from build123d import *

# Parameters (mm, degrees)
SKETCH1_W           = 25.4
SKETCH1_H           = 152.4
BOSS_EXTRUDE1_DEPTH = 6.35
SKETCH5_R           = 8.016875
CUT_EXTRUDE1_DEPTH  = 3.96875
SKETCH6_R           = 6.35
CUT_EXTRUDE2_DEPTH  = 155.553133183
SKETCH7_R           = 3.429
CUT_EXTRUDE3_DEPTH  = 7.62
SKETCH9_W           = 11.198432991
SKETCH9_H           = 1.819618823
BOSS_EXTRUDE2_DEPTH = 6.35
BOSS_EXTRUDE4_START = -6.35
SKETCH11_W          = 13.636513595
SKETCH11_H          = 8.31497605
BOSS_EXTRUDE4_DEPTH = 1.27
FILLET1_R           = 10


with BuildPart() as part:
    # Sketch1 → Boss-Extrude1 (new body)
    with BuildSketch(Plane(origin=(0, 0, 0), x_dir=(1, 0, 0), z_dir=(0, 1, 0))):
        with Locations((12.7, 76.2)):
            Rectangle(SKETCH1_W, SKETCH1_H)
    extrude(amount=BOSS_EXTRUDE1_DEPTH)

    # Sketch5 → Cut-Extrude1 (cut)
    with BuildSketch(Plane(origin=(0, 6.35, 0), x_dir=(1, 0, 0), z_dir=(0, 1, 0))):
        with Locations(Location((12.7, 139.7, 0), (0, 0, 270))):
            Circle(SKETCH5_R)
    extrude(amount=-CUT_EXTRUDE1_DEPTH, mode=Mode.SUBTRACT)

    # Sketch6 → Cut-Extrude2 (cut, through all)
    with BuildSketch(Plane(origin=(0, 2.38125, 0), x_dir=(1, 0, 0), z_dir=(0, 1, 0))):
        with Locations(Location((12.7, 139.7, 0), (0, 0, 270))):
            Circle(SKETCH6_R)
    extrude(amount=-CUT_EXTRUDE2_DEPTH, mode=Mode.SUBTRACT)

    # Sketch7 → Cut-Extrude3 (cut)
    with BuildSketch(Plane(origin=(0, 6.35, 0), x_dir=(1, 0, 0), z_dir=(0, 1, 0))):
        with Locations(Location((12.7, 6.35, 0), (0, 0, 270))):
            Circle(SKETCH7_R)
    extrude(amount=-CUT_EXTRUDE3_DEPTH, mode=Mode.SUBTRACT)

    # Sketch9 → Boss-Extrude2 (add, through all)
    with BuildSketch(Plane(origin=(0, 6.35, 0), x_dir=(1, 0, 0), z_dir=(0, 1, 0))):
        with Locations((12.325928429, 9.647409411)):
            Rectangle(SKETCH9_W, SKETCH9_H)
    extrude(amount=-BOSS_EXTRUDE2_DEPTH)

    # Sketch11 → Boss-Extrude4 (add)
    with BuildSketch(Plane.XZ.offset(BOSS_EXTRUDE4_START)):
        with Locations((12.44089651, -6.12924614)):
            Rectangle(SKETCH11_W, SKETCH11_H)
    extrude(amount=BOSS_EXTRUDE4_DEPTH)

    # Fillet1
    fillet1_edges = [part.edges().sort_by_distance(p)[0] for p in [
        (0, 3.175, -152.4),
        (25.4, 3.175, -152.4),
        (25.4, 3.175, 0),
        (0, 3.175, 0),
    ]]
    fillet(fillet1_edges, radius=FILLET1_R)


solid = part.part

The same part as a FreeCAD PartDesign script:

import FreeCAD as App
import Part
import Sketcher
from FreeCAD import Vector
Q = App.Units.Quantity


def edges_at(feature, points):
    """Names of the edges that pass closest to the given points."""
    edges = feature.Shape.Edges
    near = lambda p: min(range(len(edges)), key=lambda i: edges[i].distToShape(Part.Vertex(*p))[0])
    return sorted({f"Edge{near(p) + 1}" for p in points})

doc = App.newDocument("Part")
body = doc.addObject("PartDesign::Body", "Body")

sketch1 = body.newObject("Sketcher::SketchObject", "Sketch")
sketch1.AttachmentSupport = (doc.getObject("XZ_Plane"), [""])
sketch1.MapMode = "FlatFace"
sketch1.addGeometry(Part.LineSegment(Vector(0, -152.4, 0), Vector(0, 0, 0)), False)
sketch1.addGeometry(Part.LineSegment(Vector(0, 0, 0), Vector(25.4, 0, 0)), False)
sketch1.addGeometry(Part.LineSegment(Vector(25.4, 0, 0), Vector(25.4, -152.4, 0)), False)
sketch1.addGeometry(Part.LineSegment(Vector(25.4, -152.4, 0), Vector(0, -152.4, 0)), False)
sketch1.addConstraint(Sketcher.Constraint("Coincident", 0, 2, 1, 1))
sketch1.addConstraint(Sketcher.Constraint("Coincident", 1, 2, 2, 1))
sketch1.addConstraint(Sketcher.Constraint("Coincident", 2, 2, 3, 1))
sketch1.addConstraint(Sketcher.Constraint("Coincident", 3, 2, 0, 1))
sketch1.addConstraint(Sketcher.Constraint("Vertical", 0))
sketch1.addConstraint(Sketcher.Constraint("Horizontal", 1))
sketch1.addConstraint(Sketcher.Constraint("Vertical", 2))
sketch1.addConstraint(Sketcher.Constraint("Horizontal", 3))
sketch1.addConstraint(Sketcher.Constraint("Coincident", 0, 2, -1, 1))
sketch1.addConstraint(Sketcher.Constraint("DistanceX", 1, 1, 1, 2, Q("1 in")))
sketch1.addConstraint(Sketcher.Constraint("DistanceY", 0, 1, 0, 2, Q("6 in")))
pad1 = body.newObject("PartDesign::Pad", "Pad")
pad1.Profile = sketch1
pad1.Length = Q("0.25 in")
pad1.Reversed = True

sketch2 = body.newObject("Sketcher::SketchObject", "Sketch001")
sketch2.AttachmentSupport = (doc.getObject("XZ_Plane"), [""])
sketch2.MapMode = "FlatFace"
sketch2.AttachmentOffset = App.Placement(Vector(0, 0, -0.25 * 25.4), App.Rotation())
sketch2.addGeometry(Part.Circle(Vector(12.7, -139.7, 0), Vector(0, 0, 1), 8.016875), False)
sketch2.addConstraint(Sketcher.Constraint("DistanceX", -1, 1, 0, 3, Q("0.5 in")))
sketch2.addConstraint(Sketcher.Constraint("DistanceY", 0, 3, -1, 1, Q("5.5 in")))
sketch2.addConstraint(Sketcher.Constraint("Diameter", 0, Q("16.03375 mm")))
pocket1 = body.newObject("PartDesign::Pocket", "Pocket")
pocket1.Profile = sketch2
pocket1.Length = Q("0.15625 in")
pocket1.Reversed = True

sketch3 = body.newObject("Sketcher::SketchObject", "Sketch002")
sketch3.AttachmentSupport = (doc.getObject("XZ_Plane"), [""])
sketch3.MapMode = "FlatFace"
sketch3.AttachmentOffset = App.Placement(Vector(0, 0, -0.09375 * 25.4), App.Rotation())
sketch3.addGeometry(Part.Circle(Vector(12.7, -139.7, 0), Vector(0, 0, 1), 6.35), False)
sketch3.addConstraint(Sketcher.Constraint("Diameter", 0, Q("0.5 in")))
sketch3.addConstraint(Sketcher.Constraint("DistanceX", -1, 1, 0, 3, Q("0.5 in")))
sketch3.addConstraint(Sketcher.Constraint("DistanceY", 0, 3, -1, 1, Q("5.5 in")))
pocket2 = body.newObject("PartDesign::Pocket", "Pocket001")
pocket2.Profile = sketch3
pocket2.Type = "ThroughAll"
pocket2.Reversed = True

sketch4 = body.newObject("Sketcher::SketchObject", "Sketch003")
sketch4.AttachmentSupport = (doc.getObject("XZ_Plane"), [""])
sketch4.MapMode = "FlatFace"
sketch4.AttachmentOffset = App.Placement(Vector(0, 0, -0.25 * 25.4), App.Rotation())
sketch4.addGeometry(Part.Circle(Vector(12.7, -6.35, 0), Vector(0, 0, 1), 3.429), False)
sketch4.addConstraint(Sketcher.Constraint("Diameter", 0, Q("0.27 in")))
sketch4.addConstraint(Sketcher.Constraint("DistanceX", -1, 1, 0, 3, Q("0.5 in")))
sketch4.addConstraint(Sketcher.Constraint("DistanceY", 0, 3, -1, 1, Q("0.25 in")))
pocket3 = body.newObject("PartDesign::Pocket", "Pocket002")
pocket3.Profile = sketch4
pocket3.Length = Q("0.3 in")
pocket3.Reversed = True

sketch5 = body.newObject("Sketcher::SketchObject", "Sketch004")
sketch5.AttachmentSupport = (doc.getObject("XZ_Plane"), [""])
sketch5.MapMode = "FlatFace"
sketch5.AttachmentOffset = App.Placement(Vector(0, 0, -0.25 * 25.4), App.Rotation())
sketch5.addGeometry(Part.LineSegment(Vector(6.726712, -10.557219, 0), Vector(6.726712, -8.7376, 0)), False)
sketch5.addGeometry(Part.LineSegment(Vector(6.726712, -8.7376, 0), Vector(17.925145, -8.7376, 0)), False)
sketch5.addGeometry(Part.LineSegment(Vector(17.925145, -8.7376, 0), Vector(17.925145, -10.557219, 0)), False)
sketch5.addGeometry(Part.LineSegment(Vector(17.925145, -10.557219, 0), Vector(6.726712, -10.557219, 0)), False)
sketch5.addConstraint(Sketcher.Constraint("Coincident", 0, 2, 1, 1))
sketch5.addConstraint(Sketcher.Constraint("Coincident", 1, 2, 2, 1))
sketch5.addConstraint(Sketcher.Constraint("Coincident", 2, 2, 3, 1))
sketch5.addConstraint(Sketcher.Constraint("Coincident", 3, 2, 0, 1))
sketch5.addConstraint(Sketcher.Constraint("Vertical", 0))
sketch5.addConstraint(Sketcher.Constraint("Horizontal", 1))
sketch5.addConstraint(Sketcher.Constraint("Vertical", 2))
sketch5.addConstraint(Sketcher.Constraint("Horizontal", 3))
sketch5.addConstraint(Sketcher.Constraint("DistanceY", 0, 2, -1, 1, Q("0.344 in")))
sketch5.addConstraint(Sketcher.Constraint("DistanceY", 0, 1, 0, 2, Q("1.819619 mm")))
sketch5.addConstraint(Sketcher.Constraint("DistanceX", 1, 1, 1, 2, Q("11.198433 mm")))
sketch5.addConstraint(Sketcher.Constraint("DistanceX", -1, 1, 0, 2, Q("6.726712 mm")))
pad2 = body.newObject("PartDesign::Pad", "Pad001")
pad2.Profile = sketch5
pad2.Length = Q("0.25 in")

sketch6 = body.newObject("Sketcher::SketchObject", "Sketch005")
sketch6.AttachmentSupport = (doc.getObject("XZ_Plane"), [""])
sketch6.MapMode = "FlatFace"
sketch6.AttachmentOffset = App.Placement(Vector(0, 0, -0.25 * 25.4), App.Rotation())
sketch6.addGeometry(Part.LineSegment(Vector(5.62264, -1.971758, 0), Vector(5.62264, -10.286734, 0)), False)
sketch6.addGeometry(Part.LineSegment(Vector(5.62264, -10.286734, 0), Vector(19.259153, -10.286734, 0)), False)
sketch6.addGeometry(Part.LineSegment(Vector(19.259153, -10.286734, 0), Vector(19.259153, -1.971758, 0)), False)
sketch6.addGeometry(Part.LineSegment(Vector(19.259153, -1.971758, 0), Vector(5.62264, -1.971758, 0)), False)
sketch6.addConstraint(Sketcher.Constraint("Coincident", 0, 2, 1, 1))
sketch6.addConstraint(Sketcher.Constraint("Coincident", 1, 2, 2, 1))
sketch6.addConstraint(Sketcher.Constraint("Coincident", 2, 2, 3, 1))
sketch6.addConstraint(Sketcher.Constraint("Coincident", 3, 2, 0, 1))
sketch6.addConstraint(Sketcher.Constraint("Vertical", 0))
sketch6.addConstraint(Sketcher.Constraint("Horizontal", 1))
sketch6.addConstraint(Sketcher.Constraint("Vertical", 2))
sketch6.addConstraint(Sketcher.Constraint("Horizontal", 3))
sketch6.addConstraint(Sketcher.Constraint("DistanceX", 1, 1, 1, 2, Q("13.636514 mm")))
sketch6.addConstraint(Sketcher.Constraint("DistanceY", 0, 2, 0, 1, Q("8.314976 mm")))
sketch6.addConstraint(Sketcher.Constraint("DistanceX", -1, 1, 0, 2, Q("5.62264 mm")))
sketch6.addConstraint(Sketcher.Constraint("DistanceY", 2, 2, -1, 1, Q("1.971758 mm")))
pad3 = body.newObject("PartDesign::Pad", "Pad002")
pad3.Profile = sketch6
pad3.Length = Q("0.05 in")
doc.recompute()

fillet = body.newObject("PartDesign::Fillet", "Fillet")
fillet.Base = (pad3, edges_at(pad3, [
    (0, 3.175, -152.4),
    (25.4, 3.175, -152.4),
    (25.4, 3.175, 0),
    (0, 3.175, 0),
]))
fillet.Radius = 10

doc.recompute()
